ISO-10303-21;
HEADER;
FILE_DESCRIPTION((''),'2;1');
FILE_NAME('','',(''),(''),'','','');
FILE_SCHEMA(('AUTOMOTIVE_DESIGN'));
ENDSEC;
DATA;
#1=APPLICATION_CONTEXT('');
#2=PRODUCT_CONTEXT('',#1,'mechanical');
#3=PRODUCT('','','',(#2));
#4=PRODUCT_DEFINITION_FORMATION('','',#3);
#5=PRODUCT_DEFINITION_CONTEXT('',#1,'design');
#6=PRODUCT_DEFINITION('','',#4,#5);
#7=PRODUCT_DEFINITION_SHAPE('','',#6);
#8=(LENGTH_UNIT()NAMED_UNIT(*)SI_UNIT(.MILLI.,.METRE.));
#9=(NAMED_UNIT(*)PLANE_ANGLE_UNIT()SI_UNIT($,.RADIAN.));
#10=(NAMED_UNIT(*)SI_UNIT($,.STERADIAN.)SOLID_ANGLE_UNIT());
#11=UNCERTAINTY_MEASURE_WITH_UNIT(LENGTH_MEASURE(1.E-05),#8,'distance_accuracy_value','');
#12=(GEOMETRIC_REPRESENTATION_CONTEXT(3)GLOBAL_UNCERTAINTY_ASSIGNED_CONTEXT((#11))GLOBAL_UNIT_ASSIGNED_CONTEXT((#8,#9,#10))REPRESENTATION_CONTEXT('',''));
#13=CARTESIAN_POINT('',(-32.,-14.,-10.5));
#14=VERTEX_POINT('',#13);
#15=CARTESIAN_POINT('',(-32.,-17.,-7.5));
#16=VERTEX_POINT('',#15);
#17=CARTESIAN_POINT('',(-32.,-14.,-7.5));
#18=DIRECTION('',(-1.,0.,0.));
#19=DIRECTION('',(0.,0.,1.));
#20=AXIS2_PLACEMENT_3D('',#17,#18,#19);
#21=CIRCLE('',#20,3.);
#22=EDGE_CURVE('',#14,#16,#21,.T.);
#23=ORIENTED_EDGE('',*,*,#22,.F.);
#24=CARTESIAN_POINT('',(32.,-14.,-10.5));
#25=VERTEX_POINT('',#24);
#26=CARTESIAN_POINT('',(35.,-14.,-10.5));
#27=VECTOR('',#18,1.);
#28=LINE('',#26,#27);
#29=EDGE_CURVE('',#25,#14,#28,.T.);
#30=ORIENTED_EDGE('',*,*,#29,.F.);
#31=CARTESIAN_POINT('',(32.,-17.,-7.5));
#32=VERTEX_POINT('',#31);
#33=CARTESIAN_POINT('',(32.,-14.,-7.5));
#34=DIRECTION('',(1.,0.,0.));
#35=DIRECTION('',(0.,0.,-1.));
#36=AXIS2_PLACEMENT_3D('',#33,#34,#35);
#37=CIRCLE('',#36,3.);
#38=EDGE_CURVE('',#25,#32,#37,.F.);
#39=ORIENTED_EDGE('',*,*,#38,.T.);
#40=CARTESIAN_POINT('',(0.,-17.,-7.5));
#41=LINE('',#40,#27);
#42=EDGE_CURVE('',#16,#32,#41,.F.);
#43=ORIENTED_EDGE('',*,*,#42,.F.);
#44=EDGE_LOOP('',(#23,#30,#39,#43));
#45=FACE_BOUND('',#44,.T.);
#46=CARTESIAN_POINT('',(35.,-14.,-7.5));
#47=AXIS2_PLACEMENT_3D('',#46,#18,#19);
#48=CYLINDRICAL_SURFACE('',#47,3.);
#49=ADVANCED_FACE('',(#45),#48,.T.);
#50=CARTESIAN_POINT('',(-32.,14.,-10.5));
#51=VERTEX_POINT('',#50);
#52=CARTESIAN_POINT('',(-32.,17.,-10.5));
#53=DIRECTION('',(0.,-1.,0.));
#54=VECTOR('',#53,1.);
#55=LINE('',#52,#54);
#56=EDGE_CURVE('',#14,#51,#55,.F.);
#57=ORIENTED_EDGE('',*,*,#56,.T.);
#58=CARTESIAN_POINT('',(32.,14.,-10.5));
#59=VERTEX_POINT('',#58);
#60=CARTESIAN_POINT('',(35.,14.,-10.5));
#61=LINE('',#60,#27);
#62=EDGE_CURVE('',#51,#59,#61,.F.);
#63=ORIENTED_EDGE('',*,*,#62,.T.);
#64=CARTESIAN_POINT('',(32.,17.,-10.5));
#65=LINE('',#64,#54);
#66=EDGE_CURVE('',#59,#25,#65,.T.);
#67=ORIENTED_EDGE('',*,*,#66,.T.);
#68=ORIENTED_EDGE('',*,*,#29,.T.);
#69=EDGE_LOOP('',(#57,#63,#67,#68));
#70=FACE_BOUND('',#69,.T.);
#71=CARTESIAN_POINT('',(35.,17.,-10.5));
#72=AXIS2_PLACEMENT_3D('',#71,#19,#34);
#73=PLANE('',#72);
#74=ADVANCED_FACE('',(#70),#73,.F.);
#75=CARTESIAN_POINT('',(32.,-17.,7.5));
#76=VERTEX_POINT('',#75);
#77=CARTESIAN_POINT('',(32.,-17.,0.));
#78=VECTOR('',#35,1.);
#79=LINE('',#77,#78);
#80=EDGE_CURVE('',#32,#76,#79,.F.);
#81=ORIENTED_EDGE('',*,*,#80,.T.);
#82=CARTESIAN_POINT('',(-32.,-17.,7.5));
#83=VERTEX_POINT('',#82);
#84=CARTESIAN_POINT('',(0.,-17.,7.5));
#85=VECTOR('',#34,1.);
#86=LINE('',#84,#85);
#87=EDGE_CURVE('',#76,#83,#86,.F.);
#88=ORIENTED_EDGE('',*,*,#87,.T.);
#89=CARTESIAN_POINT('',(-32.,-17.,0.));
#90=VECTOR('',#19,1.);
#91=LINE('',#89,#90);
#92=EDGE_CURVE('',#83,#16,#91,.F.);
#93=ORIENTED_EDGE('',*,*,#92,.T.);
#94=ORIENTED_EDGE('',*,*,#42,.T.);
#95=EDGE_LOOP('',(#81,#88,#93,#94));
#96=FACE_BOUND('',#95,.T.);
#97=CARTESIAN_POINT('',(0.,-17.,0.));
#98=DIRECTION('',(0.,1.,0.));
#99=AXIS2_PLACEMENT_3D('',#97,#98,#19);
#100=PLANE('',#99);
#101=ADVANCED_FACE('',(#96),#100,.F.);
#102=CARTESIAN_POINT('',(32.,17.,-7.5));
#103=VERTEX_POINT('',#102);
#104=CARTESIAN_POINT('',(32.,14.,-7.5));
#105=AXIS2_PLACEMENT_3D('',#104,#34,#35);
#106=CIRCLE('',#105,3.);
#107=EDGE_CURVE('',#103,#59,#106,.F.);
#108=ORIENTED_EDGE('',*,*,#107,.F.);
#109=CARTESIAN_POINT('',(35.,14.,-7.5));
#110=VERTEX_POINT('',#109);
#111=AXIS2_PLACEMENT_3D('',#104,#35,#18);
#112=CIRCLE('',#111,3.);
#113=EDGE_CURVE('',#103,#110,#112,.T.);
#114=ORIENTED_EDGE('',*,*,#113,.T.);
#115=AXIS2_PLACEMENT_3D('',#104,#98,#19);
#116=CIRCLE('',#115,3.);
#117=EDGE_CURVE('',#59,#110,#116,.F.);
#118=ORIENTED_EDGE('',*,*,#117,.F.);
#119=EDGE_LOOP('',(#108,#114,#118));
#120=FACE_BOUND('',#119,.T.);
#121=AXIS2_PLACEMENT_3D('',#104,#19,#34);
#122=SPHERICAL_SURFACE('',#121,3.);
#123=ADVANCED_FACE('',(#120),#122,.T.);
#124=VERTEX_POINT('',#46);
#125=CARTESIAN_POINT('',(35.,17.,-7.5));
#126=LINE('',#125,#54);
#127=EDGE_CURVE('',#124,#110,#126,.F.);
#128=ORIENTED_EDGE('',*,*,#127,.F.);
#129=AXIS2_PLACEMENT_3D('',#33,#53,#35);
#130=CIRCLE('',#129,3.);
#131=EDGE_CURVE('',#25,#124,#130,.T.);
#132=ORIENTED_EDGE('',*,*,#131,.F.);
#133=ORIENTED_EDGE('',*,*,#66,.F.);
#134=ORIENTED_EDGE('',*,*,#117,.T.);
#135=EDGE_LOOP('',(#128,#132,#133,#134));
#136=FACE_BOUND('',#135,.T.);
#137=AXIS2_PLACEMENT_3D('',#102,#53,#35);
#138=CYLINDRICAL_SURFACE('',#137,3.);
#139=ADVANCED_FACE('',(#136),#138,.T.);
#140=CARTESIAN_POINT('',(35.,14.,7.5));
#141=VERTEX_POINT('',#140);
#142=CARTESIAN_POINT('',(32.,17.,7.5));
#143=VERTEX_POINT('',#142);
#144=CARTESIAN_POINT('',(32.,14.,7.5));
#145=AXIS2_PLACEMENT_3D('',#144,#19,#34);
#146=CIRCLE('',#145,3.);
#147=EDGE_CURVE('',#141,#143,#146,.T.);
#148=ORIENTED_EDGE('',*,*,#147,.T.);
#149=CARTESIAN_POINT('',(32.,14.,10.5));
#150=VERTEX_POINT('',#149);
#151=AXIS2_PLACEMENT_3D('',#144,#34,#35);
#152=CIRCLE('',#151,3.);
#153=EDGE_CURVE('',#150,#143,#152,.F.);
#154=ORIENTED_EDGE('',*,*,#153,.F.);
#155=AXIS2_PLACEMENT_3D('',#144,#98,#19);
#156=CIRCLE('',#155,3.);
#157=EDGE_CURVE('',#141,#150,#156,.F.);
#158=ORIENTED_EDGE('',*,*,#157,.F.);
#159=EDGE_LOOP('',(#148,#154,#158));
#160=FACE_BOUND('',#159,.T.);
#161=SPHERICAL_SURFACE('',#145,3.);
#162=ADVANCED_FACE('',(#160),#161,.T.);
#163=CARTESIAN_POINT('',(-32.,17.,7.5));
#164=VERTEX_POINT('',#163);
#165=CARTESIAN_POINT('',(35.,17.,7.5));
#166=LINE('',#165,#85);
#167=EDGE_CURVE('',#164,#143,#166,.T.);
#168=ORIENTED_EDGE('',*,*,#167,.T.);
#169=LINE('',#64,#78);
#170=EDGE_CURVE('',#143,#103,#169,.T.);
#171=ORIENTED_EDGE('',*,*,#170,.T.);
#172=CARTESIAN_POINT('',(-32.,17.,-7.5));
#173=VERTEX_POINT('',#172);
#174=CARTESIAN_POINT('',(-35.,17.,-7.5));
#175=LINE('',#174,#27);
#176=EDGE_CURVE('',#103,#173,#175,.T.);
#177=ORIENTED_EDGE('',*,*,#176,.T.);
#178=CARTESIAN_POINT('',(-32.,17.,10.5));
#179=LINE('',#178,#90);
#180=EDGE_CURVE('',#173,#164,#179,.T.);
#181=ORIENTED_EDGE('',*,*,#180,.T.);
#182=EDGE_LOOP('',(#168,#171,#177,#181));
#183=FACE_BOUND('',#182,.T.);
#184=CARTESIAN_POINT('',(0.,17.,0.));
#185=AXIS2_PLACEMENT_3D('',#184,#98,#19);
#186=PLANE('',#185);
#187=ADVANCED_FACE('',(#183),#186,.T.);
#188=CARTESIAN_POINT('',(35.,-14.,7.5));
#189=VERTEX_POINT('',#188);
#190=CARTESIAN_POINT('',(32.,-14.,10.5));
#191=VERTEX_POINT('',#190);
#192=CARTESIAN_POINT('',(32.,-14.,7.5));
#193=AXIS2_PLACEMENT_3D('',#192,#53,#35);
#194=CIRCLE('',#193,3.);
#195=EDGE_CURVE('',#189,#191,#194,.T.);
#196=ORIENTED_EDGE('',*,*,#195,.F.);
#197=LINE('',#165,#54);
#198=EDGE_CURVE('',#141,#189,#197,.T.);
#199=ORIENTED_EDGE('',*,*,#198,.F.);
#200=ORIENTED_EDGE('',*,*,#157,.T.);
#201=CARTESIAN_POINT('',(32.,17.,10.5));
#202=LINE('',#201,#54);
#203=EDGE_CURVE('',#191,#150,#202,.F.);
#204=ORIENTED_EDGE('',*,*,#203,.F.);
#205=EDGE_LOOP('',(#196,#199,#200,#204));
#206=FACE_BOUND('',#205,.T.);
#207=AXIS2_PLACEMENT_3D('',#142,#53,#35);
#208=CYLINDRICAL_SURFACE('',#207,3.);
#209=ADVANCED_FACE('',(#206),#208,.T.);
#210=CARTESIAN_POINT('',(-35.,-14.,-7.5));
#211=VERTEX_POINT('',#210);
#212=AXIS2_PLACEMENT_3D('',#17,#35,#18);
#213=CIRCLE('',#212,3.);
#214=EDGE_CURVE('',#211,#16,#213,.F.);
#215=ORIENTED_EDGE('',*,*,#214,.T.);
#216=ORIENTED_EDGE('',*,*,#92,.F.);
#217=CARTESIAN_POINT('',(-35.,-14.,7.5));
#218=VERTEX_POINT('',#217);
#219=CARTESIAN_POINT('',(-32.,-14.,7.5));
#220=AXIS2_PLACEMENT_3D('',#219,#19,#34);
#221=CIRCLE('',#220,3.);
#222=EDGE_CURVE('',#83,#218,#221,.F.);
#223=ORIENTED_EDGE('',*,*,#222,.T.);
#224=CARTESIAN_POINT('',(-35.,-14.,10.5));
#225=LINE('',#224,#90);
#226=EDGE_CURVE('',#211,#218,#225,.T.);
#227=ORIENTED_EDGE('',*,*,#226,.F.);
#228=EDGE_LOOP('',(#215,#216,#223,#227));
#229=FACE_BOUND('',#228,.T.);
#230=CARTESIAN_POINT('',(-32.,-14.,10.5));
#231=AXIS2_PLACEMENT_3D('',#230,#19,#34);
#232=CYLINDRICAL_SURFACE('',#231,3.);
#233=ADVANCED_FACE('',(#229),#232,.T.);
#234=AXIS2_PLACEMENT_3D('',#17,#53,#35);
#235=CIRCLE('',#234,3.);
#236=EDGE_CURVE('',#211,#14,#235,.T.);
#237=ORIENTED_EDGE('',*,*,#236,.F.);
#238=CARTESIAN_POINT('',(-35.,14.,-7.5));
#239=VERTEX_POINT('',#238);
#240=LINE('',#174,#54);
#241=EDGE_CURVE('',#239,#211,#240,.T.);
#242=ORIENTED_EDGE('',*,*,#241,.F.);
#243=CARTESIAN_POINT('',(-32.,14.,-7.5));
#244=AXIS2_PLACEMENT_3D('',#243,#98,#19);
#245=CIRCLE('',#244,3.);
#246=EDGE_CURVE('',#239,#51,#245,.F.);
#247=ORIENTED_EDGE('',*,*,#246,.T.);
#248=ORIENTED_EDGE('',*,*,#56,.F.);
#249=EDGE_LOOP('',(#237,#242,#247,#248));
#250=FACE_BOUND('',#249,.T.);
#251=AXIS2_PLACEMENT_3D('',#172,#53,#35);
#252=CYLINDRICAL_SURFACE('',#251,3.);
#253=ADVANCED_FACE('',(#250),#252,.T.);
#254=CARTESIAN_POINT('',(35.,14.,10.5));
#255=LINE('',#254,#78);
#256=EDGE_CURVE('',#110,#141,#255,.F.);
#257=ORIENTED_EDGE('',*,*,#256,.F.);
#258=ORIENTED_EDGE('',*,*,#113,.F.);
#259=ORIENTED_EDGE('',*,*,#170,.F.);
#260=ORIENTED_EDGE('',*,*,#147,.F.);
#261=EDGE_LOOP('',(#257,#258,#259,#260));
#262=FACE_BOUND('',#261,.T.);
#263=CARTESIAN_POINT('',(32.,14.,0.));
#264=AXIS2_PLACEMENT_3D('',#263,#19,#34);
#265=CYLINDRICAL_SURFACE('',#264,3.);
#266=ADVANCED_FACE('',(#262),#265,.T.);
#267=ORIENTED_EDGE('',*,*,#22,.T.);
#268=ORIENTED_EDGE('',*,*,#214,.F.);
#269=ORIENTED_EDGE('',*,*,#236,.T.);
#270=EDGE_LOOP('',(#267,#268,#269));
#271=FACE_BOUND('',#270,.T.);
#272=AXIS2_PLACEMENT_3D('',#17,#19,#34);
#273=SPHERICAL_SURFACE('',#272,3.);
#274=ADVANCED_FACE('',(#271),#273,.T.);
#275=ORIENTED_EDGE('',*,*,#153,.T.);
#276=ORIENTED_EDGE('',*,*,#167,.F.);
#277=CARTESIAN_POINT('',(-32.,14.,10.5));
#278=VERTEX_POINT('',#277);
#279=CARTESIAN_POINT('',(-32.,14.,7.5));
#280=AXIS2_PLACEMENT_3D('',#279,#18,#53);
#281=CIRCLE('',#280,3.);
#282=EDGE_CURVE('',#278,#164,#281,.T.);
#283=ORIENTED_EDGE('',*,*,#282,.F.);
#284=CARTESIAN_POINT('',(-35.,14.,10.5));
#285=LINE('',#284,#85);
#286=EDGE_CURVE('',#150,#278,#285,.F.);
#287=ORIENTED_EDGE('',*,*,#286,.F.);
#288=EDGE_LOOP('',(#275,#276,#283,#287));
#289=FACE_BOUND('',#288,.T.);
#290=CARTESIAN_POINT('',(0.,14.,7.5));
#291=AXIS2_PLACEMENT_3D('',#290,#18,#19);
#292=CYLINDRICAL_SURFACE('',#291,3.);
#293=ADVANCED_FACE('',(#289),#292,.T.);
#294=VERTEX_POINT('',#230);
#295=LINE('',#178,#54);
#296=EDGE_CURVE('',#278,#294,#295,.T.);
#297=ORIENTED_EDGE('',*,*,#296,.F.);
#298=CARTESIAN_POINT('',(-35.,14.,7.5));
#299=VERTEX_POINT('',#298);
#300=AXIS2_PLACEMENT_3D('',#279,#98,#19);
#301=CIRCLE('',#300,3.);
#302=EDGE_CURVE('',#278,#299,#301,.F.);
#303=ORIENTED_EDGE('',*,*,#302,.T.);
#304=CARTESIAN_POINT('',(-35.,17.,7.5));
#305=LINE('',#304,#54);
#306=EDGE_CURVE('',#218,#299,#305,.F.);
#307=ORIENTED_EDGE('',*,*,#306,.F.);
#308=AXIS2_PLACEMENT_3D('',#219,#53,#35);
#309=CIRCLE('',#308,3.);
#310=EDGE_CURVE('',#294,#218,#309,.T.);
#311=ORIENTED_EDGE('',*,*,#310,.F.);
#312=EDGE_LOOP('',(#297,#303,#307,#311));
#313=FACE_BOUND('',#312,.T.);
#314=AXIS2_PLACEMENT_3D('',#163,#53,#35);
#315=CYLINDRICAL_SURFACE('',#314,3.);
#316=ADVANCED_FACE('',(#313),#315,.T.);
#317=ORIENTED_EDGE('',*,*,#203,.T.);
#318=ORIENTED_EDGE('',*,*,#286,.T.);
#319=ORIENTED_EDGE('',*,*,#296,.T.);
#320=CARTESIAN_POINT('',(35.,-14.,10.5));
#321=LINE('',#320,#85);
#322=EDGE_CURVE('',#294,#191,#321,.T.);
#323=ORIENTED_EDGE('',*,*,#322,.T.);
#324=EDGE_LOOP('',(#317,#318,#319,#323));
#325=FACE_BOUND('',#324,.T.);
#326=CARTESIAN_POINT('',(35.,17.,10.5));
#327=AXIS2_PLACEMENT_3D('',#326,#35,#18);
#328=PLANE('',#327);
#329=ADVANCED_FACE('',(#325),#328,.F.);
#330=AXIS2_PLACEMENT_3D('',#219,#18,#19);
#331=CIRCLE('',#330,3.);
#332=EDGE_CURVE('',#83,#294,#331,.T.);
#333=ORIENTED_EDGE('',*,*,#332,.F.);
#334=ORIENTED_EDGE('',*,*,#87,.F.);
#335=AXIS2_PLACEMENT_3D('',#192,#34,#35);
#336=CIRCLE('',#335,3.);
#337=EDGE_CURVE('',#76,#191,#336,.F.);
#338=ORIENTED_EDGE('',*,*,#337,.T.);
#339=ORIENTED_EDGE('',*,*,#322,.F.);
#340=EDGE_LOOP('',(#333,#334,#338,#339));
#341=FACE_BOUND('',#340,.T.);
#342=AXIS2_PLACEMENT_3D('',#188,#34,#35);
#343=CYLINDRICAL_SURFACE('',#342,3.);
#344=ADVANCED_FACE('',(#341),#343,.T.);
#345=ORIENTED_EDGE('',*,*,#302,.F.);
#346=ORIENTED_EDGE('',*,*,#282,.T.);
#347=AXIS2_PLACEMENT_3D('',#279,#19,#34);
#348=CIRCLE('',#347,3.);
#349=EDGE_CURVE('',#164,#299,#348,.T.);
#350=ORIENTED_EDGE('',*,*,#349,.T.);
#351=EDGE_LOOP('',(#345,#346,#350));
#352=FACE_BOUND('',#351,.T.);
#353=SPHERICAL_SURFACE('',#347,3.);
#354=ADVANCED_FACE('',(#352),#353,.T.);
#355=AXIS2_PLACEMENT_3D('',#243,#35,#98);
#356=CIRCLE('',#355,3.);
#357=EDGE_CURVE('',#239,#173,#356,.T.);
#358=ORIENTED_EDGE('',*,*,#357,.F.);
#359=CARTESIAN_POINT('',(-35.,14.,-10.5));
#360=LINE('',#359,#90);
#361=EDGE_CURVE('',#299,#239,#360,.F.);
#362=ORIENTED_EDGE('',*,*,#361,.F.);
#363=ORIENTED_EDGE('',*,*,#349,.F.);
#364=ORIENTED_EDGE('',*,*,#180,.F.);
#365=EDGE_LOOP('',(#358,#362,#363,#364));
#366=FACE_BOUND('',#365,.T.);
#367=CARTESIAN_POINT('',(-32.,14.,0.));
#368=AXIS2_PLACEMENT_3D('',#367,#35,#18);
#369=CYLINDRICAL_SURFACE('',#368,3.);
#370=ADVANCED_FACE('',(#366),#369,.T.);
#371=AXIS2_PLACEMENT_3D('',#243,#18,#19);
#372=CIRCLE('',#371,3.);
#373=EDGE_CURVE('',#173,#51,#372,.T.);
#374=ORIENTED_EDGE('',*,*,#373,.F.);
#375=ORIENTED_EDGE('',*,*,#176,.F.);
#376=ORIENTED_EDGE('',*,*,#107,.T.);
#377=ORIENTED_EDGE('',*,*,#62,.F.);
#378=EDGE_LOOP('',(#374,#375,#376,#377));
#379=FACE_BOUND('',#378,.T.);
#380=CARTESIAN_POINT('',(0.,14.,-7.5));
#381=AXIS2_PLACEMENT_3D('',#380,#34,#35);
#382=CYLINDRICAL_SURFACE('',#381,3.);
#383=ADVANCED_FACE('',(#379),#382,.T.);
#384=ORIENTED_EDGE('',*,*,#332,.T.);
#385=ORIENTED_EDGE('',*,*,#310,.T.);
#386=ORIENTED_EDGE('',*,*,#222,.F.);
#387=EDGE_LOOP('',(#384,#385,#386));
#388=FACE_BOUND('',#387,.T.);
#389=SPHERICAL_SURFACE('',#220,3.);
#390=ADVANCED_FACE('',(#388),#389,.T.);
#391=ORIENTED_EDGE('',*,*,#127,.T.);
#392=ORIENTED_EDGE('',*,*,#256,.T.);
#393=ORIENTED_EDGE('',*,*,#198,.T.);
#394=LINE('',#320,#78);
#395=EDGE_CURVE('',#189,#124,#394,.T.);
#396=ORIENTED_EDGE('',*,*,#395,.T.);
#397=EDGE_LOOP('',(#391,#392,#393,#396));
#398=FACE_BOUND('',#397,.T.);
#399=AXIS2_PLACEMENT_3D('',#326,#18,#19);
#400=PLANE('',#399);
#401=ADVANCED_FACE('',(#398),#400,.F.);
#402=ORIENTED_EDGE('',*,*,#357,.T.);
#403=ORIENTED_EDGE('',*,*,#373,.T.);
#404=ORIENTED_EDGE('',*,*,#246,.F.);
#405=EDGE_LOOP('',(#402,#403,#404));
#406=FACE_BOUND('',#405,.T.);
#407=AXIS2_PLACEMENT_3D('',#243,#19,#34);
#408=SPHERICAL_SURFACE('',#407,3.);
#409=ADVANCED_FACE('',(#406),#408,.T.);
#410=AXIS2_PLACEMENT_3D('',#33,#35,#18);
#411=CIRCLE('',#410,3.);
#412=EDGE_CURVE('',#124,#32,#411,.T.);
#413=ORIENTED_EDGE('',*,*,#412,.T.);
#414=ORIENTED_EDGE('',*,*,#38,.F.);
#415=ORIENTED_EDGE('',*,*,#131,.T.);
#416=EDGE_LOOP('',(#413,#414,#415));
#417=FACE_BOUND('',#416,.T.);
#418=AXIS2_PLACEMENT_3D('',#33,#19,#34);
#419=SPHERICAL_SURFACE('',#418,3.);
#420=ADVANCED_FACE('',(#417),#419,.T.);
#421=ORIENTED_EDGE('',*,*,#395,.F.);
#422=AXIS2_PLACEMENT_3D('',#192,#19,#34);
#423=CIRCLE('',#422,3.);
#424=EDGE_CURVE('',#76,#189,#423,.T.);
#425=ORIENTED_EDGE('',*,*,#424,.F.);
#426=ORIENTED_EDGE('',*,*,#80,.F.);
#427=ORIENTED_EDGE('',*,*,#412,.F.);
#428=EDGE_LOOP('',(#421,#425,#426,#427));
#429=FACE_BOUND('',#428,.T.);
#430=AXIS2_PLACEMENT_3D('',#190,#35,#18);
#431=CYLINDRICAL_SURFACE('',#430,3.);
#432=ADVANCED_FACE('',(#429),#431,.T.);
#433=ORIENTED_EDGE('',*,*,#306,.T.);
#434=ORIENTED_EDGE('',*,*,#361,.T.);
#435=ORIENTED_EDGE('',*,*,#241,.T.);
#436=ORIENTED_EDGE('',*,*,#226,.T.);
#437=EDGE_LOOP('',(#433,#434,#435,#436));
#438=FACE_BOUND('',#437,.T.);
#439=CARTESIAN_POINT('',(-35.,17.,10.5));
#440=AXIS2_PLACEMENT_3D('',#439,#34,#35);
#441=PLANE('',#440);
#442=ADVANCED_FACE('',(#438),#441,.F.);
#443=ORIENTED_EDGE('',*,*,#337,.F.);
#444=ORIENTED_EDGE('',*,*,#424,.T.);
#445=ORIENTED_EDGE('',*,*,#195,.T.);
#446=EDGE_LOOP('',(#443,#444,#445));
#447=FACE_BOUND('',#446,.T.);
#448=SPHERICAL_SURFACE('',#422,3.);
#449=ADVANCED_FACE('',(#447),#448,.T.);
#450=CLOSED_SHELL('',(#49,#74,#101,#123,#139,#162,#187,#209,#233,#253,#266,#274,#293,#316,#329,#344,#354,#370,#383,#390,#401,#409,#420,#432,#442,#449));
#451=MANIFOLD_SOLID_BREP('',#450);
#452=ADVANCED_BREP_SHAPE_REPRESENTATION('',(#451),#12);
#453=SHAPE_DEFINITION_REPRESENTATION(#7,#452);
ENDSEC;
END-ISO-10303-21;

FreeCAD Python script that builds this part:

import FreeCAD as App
import Part
import Sketcher

V = App.Vector
Q = App.Units.Quantity


def add_polygon(sketch, points):
    """Adds a closed chain of lines whose ends are joined by coincident constraints."""
    first, n = sketch.GeometryCount, len(points)
    for a, b in zip(points, points[1:] + points[:1]):
        sketch.addGeometry(Part.LineSegment(App.Vector(*a, 0), App.Vector(*b, 0)), False)
    for i in range(n):
        sketch.addConstraint(Sketcher.Constraint("Coincident", first + i, 2, first + (i + 1) % n, 1))

doc = App.newDocument("Part")
body = doc.addObject("PartDesign::Body", "Body")

sketch1 = body.newObject("Sketcher::SketchObject", "Sketch")
sketch1.AttachmentSupport = (doc.getObject("XZ_Plane"), [""])
sketch1.MapMode = "FlatFace"
add_polygon(sketch1, [(-35, -10), (-35, 10), (35, 10), (35, -10)])
sketch1.addConstraint(Sketcher.Constraint("Vertical", 0))
sketch1.addConstraint(Sketcher.Constraint("Horizontal", 1))
sketch1.addConstraint(Sketcher.Constraint("Vertical", 2))
sketch1.addConstraint(Sketcher.Constraint("Horizontal", 3))
sketch1.addConstraint(Sketcher.Constraint("Symmetric", 0, 2, 2, 2, -1, 1))
sketch1.addConstraint(Sketcher.Constraint("DistanceX", 1, 1, 1, 2, Q("70 mm")))
sketch1.addConstraint(Sketcher.Constraint("DistanceY", 0, 1, 0, 2, Q("21 mm")))
pad1 = body.newObject("PartDesign::Pad", "Pad")
pad1.Profile = sketch1
pad1.Length = 34
pad1.Midplane = True
doc.recompute()

fillet = body.newObject("PartDesign::Fillet", "Fillet")
fillet.Base = (pad1, ["Edge1"])
fillet.UseAllEdges = True
fillet.Radius = 3

doc.recompute()
